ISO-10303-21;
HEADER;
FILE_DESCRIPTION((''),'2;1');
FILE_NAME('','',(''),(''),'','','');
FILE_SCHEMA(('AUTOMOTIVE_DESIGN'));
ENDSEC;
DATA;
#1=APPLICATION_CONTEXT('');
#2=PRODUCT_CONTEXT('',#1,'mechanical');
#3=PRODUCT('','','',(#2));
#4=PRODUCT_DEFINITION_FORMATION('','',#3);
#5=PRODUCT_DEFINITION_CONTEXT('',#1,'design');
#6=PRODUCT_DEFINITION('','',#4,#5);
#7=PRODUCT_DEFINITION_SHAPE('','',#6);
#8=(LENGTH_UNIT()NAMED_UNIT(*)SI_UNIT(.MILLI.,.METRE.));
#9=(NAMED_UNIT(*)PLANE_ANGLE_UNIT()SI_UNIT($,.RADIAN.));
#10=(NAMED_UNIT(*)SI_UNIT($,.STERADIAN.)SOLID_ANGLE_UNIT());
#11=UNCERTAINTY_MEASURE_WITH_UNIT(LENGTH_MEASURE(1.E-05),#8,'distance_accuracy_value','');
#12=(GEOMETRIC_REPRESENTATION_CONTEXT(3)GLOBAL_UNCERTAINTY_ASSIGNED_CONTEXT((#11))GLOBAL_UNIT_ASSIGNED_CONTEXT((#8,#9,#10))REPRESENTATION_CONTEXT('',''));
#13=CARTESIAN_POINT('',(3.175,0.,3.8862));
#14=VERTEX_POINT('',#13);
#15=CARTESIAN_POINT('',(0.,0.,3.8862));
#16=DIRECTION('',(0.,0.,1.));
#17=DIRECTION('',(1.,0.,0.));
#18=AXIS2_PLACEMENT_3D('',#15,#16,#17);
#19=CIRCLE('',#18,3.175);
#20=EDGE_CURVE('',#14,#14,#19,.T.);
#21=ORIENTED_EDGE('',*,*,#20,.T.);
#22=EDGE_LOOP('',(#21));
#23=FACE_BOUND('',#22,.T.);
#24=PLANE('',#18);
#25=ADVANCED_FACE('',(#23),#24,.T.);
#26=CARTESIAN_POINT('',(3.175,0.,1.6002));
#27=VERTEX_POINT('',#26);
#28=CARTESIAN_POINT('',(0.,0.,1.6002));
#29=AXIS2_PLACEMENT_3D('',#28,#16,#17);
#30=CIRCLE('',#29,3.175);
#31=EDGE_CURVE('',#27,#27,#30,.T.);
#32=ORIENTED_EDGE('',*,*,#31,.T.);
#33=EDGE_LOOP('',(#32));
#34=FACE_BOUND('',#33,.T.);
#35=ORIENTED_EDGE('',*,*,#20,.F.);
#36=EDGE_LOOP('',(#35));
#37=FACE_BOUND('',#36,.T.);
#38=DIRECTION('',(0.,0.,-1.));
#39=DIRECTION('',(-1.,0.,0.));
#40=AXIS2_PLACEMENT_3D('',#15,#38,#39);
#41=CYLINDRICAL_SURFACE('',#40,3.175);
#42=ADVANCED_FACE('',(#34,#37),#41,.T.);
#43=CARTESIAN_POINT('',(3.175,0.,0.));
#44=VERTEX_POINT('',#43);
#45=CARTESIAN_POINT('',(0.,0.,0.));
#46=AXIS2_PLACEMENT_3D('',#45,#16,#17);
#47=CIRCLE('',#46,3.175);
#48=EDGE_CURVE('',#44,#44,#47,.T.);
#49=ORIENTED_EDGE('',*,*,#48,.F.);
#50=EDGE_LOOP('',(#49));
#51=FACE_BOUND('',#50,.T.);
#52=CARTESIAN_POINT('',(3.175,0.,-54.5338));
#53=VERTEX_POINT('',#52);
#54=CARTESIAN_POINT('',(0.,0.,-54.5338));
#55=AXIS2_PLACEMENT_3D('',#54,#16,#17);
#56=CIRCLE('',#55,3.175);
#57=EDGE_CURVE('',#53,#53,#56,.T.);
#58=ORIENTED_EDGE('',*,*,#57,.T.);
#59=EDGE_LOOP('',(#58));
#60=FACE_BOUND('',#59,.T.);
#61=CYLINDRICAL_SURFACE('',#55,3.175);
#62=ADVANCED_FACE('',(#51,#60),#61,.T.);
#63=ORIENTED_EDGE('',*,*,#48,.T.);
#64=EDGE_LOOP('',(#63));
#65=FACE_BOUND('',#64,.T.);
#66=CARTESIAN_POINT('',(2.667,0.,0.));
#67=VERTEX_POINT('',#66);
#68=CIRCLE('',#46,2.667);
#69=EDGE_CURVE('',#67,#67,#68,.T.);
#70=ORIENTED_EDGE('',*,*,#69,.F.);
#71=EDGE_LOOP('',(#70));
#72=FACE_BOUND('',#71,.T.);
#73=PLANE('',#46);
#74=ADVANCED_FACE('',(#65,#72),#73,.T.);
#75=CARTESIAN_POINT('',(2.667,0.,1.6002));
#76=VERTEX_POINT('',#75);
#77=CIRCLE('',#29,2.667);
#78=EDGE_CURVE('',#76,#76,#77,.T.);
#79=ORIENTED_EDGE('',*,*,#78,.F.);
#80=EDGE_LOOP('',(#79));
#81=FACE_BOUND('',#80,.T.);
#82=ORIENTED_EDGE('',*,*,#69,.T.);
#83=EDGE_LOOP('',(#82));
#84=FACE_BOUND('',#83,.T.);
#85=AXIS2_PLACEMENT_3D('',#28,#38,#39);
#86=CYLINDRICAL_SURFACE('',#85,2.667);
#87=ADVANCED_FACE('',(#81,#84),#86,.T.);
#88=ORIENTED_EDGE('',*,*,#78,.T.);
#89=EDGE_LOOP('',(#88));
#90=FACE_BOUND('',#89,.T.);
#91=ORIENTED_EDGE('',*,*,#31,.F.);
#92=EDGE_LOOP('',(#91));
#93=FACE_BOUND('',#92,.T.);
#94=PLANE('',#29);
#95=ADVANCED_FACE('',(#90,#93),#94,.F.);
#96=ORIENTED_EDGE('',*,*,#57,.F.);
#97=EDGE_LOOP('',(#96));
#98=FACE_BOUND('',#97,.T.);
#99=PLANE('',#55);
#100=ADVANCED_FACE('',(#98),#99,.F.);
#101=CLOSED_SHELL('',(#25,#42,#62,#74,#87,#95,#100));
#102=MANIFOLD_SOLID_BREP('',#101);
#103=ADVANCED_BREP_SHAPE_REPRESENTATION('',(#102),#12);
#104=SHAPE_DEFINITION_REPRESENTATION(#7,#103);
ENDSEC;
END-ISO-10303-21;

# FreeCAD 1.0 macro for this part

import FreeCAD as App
import Part
import Sketcher
from FreeCAD import Vector
Q = App.Units.Quantity

doc = App.newDocument("Part")
body = doc.addObject("PartDesign::Body", "Body")

# Sketch on XY plane
sketch1 = body.newObject("Sketcher::SketchObject", "Sketch")
sketch1.AttachmentSupport = (doc.getObject("XY_Plane"), [""])
sketch1.MapMode = "FlatFace"
sketch1.addGeometry(Part.Circle(Vector(0, 0, 0), Vector(0, 0, 1), 3.2), False)
sketch1.addConstraint(Sketcher.Constraint("Coincident", 0, 3, -1, 1))
sketch1.addConstraint(Sketcher.Constraint("Diameter", 0, Q("0.25 in")))
pad1 = body.newObject("PartDesign::Pad", "Pad")
pad1.Profile = sketch1
pad1.Length = Q("2.147 in")
pad1.Reversed = True

# Sketch on XY plane
sketch2 = body.newObject("Sketcher::SketchObject", "Sketch001")
sketch2.AttachmentSupport = (doc.getObject("XY_Plane"), [""])
sketch2.MapMode = "FlatFace"
sketch2.addGeometry(Part.Circle(Vector(0, 0, 0), Vector(0, 0, 1), 2.7), False)
sketch2.addConstraint(Sketcher.Constraint("Coincident", 0, 3, -1, 1))
sketch2.addConstraint(Sketcher.Constraint("Diameter", 0, Q("0.21 in")))
pad2 = body.newObject("PartDesign::Pad", "Pad001")
pad2.Profile = sketch2
pad2.Length = Q("0.063 in")

# Sketch on XY plane
sketch3 = body.newObject("Sketcher::SketchObject", "Sketch002")
sketch3.AttachmentSupport = (doc.getObject("XY_Plane"), [""])
sketch3.MapMode = "FlatFace"
sketch3.AttachmentOffset = App.Placement(Vector(0, 0, 0.063 * 25.4), App.Rotation())
sketch3.addGeometry(Part.Circle(Vector(0, 0, 0), Vector(0, 0, 1), 3.2), False)
sketch3.addConstraint(Sketcher.Constraint("Coincident", 0, 3, -1, 1))
sketch3.addConstraint(Sketcher.Constraint("Diameter", 0, Q("0.25 in")))
pad3 = body.newObject("PartDesign::Pad", "Pad002")
pad3.Profile = sketch3
pad3.Length = Q("0.09 in")

doc.recompute()
